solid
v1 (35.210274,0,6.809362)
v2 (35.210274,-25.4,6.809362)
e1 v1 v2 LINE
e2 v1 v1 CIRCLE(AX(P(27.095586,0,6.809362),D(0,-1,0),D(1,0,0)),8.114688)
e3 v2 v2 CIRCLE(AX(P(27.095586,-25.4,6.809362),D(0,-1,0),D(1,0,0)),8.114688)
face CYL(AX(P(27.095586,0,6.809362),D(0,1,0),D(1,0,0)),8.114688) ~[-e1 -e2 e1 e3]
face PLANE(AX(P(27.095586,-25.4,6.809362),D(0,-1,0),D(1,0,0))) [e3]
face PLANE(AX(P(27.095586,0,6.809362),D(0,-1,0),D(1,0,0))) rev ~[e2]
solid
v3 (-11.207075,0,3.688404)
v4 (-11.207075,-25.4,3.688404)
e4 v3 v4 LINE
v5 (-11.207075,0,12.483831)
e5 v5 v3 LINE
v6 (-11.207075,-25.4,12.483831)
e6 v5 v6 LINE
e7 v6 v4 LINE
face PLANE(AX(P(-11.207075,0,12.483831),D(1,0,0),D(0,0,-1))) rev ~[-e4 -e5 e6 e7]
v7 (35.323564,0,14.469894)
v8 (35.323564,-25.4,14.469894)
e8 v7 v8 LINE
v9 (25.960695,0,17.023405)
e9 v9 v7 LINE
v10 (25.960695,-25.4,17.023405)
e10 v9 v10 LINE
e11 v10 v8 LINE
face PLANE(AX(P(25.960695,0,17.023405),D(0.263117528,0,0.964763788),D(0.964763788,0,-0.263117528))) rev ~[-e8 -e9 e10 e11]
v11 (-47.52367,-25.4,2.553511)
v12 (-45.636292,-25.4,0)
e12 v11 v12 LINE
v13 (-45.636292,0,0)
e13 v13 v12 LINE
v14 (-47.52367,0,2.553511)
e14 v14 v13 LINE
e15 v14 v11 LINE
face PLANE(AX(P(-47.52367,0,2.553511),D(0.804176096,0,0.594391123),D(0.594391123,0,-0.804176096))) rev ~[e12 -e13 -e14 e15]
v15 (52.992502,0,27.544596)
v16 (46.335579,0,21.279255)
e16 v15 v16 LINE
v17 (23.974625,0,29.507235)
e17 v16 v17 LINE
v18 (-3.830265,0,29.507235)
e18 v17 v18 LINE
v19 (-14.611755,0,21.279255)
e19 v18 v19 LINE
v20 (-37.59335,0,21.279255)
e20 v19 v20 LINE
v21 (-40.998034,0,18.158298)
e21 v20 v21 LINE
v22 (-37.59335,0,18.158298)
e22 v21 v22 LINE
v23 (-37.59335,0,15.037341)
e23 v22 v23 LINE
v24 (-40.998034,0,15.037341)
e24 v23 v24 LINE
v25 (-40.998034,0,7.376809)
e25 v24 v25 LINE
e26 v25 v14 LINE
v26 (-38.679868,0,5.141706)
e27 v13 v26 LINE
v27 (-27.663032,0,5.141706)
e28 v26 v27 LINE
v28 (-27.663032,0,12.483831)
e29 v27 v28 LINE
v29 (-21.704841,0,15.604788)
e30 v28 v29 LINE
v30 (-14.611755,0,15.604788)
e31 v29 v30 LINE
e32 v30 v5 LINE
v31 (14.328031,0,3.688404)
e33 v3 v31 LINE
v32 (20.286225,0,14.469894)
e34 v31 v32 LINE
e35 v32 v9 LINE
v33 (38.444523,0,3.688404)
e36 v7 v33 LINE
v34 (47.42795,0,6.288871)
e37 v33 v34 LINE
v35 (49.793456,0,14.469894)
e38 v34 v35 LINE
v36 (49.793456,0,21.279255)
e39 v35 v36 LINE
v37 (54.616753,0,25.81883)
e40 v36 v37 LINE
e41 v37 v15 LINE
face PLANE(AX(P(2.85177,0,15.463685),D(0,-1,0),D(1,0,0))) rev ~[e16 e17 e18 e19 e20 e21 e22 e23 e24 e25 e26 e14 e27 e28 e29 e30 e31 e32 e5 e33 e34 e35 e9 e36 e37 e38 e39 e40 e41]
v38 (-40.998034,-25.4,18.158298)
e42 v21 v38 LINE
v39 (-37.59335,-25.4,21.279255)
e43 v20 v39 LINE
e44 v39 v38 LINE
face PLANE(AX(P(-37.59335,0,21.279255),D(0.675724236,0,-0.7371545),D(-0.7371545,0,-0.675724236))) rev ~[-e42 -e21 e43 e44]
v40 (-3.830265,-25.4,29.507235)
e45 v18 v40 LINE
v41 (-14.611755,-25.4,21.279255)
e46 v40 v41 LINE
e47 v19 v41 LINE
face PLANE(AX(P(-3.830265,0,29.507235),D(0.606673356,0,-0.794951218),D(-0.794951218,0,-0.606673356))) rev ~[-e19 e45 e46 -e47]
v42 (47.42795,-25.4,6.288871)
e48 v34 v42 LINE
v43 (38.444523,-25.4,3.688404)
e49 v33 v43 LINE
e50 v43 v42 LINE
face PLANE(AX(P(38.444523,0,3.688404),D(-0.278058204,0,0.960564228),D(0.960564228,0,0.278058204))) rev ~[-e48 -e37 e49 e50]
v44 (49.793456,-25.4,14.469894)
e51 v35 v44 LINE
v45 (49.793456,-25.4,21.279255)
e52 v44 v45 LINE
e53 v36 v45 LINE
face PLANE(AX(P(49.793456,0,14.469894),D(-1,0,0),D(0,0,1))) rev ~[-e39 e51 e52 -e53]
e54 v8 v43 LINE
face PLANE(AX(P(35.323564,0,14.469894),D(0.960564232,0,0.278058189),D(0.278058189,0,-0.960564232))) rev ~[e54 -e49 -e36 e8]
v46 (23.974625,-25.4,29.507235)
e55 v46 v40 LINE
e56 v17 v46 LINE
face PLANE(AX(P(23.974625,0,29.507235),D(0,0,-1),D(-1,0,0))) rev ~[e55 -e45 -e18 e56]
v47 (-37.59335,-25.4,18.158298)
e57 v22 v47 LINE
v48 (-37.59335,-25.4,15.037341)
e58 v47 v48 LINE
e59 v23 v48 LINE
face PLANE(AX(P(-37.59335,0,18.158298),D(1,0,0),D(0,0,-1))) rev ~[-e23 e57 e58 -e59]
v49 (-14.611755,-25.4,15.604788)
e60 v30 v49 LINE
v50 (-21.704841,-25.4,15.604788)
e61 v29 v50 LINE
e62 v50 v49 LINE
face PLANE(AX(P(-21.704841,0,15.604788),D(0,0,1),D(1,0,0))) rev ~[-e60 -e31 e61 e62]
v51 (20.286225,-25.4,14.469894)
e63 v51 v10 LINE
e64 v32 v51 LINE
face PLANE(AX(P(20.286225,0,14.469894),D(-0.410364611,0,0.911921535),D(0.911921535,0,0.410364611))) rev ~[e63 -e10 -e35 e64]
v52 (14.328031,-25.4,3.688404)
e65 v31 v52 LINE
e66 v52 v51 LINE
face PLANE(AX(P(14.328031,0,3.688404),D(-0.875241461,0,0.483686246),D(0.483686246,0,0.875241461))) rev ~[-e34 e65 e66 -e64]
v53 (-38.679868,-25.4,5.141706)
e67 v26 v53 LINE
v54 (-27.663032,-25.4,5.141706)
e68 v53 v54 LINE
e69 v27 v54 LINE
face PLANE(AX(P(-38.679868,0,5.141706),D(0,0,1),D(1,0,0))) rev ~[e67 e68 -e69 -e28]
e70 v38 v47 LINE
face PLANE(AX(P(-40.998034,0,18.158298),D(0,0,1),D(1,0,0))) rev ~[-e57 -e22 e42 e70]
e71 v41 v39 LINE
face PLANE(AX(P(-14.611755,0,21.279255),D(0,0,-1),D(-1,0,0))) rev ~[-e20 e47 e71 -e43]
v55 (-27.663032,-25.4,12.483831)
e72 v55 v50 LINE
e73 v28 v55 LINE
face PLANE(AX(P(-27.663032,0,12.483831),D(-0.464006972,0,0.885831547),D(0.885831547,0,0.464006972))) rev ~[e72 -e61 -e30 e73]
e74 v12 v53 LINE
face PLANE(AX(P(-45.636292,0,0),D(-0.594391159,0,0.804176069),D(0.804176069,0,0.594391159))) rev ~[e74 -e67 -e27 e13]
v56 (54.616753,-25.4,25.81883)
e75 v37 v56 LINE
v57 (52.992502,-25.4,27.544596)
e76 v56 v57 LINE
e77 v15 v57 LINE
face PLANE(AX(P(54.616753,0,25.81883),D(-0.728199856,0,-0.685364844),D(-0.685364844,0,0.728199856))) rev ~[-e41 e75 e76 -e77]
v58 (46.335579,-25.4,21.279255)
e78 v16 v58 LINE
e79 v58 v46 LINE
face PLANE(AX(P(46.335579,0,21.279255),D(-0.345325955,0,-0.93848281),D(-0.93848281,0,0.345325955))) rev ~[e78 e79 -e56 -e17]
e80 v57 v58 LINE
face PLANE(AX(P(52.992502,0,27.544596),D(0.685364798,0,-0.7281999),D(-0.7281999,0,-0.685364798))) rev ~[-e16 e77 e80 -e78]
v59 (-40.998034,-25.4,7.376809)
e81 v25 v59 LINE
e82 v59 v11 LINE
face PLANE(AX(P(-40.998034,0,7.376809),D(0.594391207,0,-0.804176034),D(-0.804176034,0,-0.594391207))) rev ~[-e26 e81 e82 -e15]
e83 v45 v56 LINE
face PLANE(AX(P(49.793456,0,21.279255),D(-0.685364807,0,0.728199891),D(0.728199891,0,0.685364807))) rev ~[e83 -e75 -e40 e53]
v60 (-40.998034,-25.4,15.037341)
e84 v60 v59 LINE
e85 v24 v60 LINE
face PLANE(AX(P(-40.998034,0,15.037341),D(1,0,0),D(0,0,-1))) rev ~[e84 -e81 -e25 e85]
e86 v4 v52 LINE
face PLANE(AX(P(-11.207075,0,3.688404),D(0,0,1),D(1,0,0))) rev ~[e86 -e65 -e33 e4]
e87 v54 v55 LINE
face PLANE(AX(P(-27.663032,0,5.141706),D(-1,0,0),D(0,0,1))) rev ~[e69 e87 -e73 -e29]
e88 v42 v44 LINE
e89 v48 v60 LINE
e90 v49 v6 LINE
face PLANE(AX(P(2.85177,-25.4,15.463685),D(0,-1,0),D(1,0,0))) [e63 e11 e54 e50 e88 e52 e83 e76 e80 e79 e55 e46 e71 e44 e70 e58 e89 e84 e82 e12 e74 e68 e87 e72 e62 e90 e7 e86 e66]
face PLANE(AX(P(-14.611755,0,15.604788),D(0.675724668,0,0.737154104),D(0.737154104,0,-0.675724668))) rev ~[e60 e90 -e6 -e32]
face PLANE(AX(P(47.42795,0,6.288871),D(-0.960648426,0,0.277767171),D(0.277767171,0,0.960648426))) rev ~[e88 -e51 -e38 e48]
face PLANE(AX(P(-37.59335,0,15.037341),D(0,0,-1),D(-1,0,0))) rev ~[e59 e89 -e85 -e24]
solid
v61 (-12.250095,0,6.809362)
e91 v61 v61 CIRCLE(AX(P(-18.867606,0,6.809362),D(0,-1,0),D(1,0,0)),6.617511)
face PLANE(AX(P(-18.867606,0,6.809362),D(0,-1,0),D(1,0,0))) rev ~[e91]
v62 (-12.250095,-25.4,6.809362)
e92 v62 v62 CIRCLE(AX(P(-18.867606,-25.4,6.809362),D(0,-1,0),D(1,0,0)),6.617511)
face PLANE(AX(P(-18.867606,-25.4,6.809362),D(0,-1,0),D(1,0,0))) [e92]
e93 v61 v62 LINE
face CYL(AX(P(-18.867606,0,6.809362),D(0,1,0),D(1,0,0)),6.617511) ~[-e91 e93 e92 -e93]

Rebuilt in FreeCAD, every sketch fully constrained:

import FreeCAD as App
import Part
import Sketcher

V = App.Vector
Q = App.Units.Quantity


def add_polygon(sketch, points):
    """Adds a closed chain of lines whose ends are joined by coincident constraints."""
    first, n = sketch.GeometryCount, len(points)
    for a, b in zip(points, points[1:] + points[:1]):
        sketch.addGeometry(Part.LineSegment(App.Vector(*a, 0), App.Vector(*b, 0)), False)
    for i in range(n):
        sketch.addConstraint(Sketcher.Constraint("Coincident", first + i, 2, first + (i + 1) % n, 1))

doc = App.newDocument("Part")
params = doc.addObject("Spreadsheet::Sheet", "Params")
for row, (alias, value) in enumerate([
    ("pad1_length", "1 in"),
    ("pad2_length", "1 in"),
], start=1):
    params.set(f"A{row}", alias)
    params.set(f"B{row}", "=" + value)
    params.setAlias(f"B{row}", alias)

body = doc.addObject("PartDesign::Body", "Body")
body.AllowCompound = True

# Sketch on XZ plane
sketch1 = body.newObject("Sketcher::SketchObject", "Sketch")
sketch1.AttachmentSupport = (doc.getObject("XZ_Plane"), [""])
sketch1.MapMode = "FlatFace"
sketch1.addGeometry([
    Part.Circle(V(27, 7, 0), V(0, 0, 1), 8),
    Part.Circle(V(-19, 7, 0), V(0, 0, 1), 7),
], False)
sketch1.addConstraint([
    Sketcher.Constraint("Horizontal", 0, 3, 1, 3),
    Sketcher.Constraint("Diameter", 0, Q("16.229376 mm")),
    Sketcher.Constraint("Diameter", 1, Q("13.235022 mm")),
    Sketcher.Constraint("DistanceX", -1, 1, 0, 3, Q("27.095586 mm")),
    Sketcher.Constraint("DistanceY", -1, 1, 0, 3, Q("6.809362 mm")),
    Sketcher.Constraint("DistanceX", 1, 3, -1, 1, Q("18.867606 mm")),
])
pad1 = body.newObject("PartDesign::Pad", "Pad")
pad1.Profile = sketch1
pad1.setExpression("Length", "Params.pad1_length")
body2 = doc.addObject("PartDesign::Body", "Body001")

# Sketch on XZ plane
sketch2 = body2.newObject("Sketcher::SketchObject", "Sketch001")
sketch2.AttachmentSupport = (doc.getObject("XZ_Plane001"), [""])
sketch2.MapMode = "FlatFace"
add_polygon(sketch2, [(-11.2, 12.5), (-11.2, 3.7), (14.3, 3.7), (20.3, 14.5), (26, 17), (35.3, 14.5), (38.4, 3.7), (47.4, 6.3), (49.8, 14.5), (49.8, 21.3), (54.6, 25.8), (53, 27.5), (46.3, 21.3), (24, 29.5), (-3.8, 29.5), (-14.6, 21.3), (-37.6, 21.3), (-41, 18.2), (-37.6, 18.2), (-37.6, 15), (-41, 15), (-41, 7.4), (-47.5, 2.6), (-45.6, 0), (-38.7, 5.1), (-27.7, 5.1), (-27.7, 12.5), (-21.7, 15.6), (-14.6, 15.6)])  # lines 0-28
sketch2.addConstraint([
    Sketcher.Constraint("Vertical", 0),
    Sketcher.Constraint("Horizontal", 1),
    Sketcher.Constraint("Vertical", 8),
    Sketcher.Constraint("Horizontal", 13),
    Sketcher.Constraint("Horizontal", 15),
    Sketcher.Constraint("Horizontal", 17),
    Sketcher.Constraint("Vertical", 18),
    Sketcher.Constraint("Horizontal", 19),
    Sketcher.Constraint("Vertical", 20),
    Sketcher.Constraint("Horizontal", 24),
    Sketcher.Constraint("Vertical", 25),
    Sketcher.Constraint("Horizontal", 27),
    Sketcher.Constraint("PointOnObject", 22, 2, -1),
    Sketcher.Constraint("Perpendicular", 5, 6),
    Sketcher.Constraint("Perpendicular", 9, 10),
    Sketcher.Constraint("Perpendicular", 10, 11),
    Sketcher.Constraint("Perpendicular", 21, 22),
    Sketcher.Constraint("Perpendicular", 22, 23),
    Sketcher.Constraint("Horizontal", 2, 2, 4, 2),
    Sketcher.Constraint("Horizontal", 1, 2, 5, 2),
    Sketcher.Constraint("Horizontal", 4, 2, 7, 2),
    Sketcher.Constraint("Horizontal", 8, 2, 11, 2),
    Sketcher.Constraint("Horizontal", 11, 2, 14, 2),
    Sketcher.Constraint("Horizontal", 25, 2, 28, 2),
    Sketcher.Constraint("Vertical", 15, 2, 17, 2),
    Sketcher.Constraint("Vertical", 16, 2, 19, 2),
    Sketcher.Constraint("Vertical", 14, 2, 27, 2),
    Sketcher.Constraint("DistanceY", 1, 2, 3, 2, Q("0.525 in")),
    Sketcher.Constraint("DistanceX", 20, 2, 24, 2, Q("0.5250001 in")),
    Sketcher.Constraint("Distance", 26, Q("6.726099 mm")),
    Sketcher.Constraint("DistanceX", 13, 2, 13, 1, Q("27.80489 mm")),
    Sketcher.Constraint("DistanceY", 8, 1, 8, 2, Q("6.809361 mm")),
    Sketcher.Constraint("DistanceX", 0, 2, 2, 2, Q("31.4933 mm")),
    Sketcher.Constraint("DistanceY", 7, 2, 10, 2, Q("13.074702 mm")),
    Sketcher.Constraint("DistanceX", 2, 2, 12, 2, Q("3.6884 mm")),
    Sketcher.Constraint("Distance", 3, Q("6.222542 mm")),
    Sketcher.Constraint("Distance", 4, Q("9.70483 mm")),
    Sketcher.Constraint("Distance", 5, Q("11.224122 mm")),
    Sketcher.Constraint("Distance", 6, Q("9.35224 mm")),
    Sketcher.Constraint("Distance", 9, Q("6.623589 mm")),
    Sketcher.Constraint("Distance", 28, Q("4.618681 mm")),
    Sketcher.Constraint("DistanceX", 1, 1, 1, 2, Q("25.535106 mm")),
    Sketcher.Constraint("DistanceX", 15, 2, 15, 1, Q("22.981595 mm")),
    Sketcher.Constraint("DistanceX", 17, 1, 17, 2, Q("3.404684 mm")),
    Sketcher.Constraint("DistanceX", 24, 1, 24, 2, Q("11.016836 mm")),
    Sketcher.Constraint("DistanceX", 27, 1, 27, 2, Q("7.093086 mm")),
    Sketcher.Constraint("DistanceY", 0, 2, 0, 1, Q("8.795427 mm")),
    Sketcher.Constraint("DistanceY", 18, 2, 18, 1, Q("3.120957 mm")),
    Sketcher.Constraint("DistanceY", 20, 2, 20, 1, Q("7.660532 mm")),
    Sketcher.Constraint("DistanceY", 25, 1, 25, 2, Q("7.342125 mm")),
    Sketcher.Constraint("DistanceX", -1, 1, 1, 2, Q("14.328031 mm")),
    Sketcher.Constraint("DistanceX", -1, 1, 6, 2, Q("47.42795 mm")),
    Sketcher.Constraint("DistanceY", -1, 1, 6, 2, Q("6.288871 mm")),
    Sketcher.Constraint("DistanceY", -1, 1, 9, 2, Q("25.81883 mm")),
    Sketcher.Constraint("DistanceX", -1, 1, 11, 2, Q("46.335579 mm")),
    Sketcher.Constraint("DistanceY", -1, 1, 18, 2, Q("15.037341 mm")),
    Sketcher.Constraint("DistanceX", 21, 2, -1, 1, Q("47.52367 mm")),
    Sketcher.Constraint("DistanceY", 3, 2, 12, 2, Q("12.48383 mm")),
])
pad2 = body2.newObject("PartDesign::Pad", "Pad001")
pad2.Profile = sketch2
pad2.setExpression("Length", "Params.pad2_length")

doc.recompute()
